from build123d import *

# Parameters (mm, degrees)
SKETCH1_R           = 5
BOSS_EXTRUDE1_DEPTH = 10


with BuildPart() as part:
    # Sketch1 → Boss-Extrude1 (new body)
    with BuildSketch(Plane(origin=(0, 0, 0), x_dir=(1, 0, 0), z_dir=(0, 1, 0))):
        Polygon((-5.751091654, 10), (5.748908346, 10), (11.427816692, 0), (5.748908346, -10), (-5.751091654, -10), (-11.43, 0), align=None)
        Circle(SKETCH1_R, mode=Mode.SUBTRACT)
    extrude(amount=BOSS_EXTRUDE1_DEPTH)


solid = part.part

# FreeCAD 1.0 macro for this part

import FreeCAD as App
import Part
import Sketcher

V = App.Vector

doc = App.newDocument("Part")
params = doc.addObject("Spreadsheet::Sheet", "Params")
for row, (alias, value) in enumerate([
    ("sketch1_diameter", "10 mm"),
    ("sketch1_width", "11.5 mm"),
    ("sketch1_length", "11.5 mm"),
    ("pad1_length", "10 mm"),
], start=1):
    params.set(f"A{row}", alias)
    params.set(f"B{row}", "=" + value)
    params.setAlias(f"B{row}", alias)

body = doc.addObject("PartDesign::Body", "Body")

sketch1 = doc.addObject("Sketcher::SketchObject", "Sketch")
body.addObject(sketch1)
sketch1.AttachmentSupport = (doc.XZ_Plane, [""])
sketch1.MapMode = "FlatFace"
sketch1.addGeometry([
    Part.LineSegment(V(6, -10, 0), V(-6, -10, 0)),
    Part.LineSegment(V(-6, -10, 0), V(-11, 0, 0)),
    Part.LineSegment(V(-11, 0, 0), V(-6, 10, 0)),
    Part.LineSegment(V(-6, 10, 0), V(6, 10, 0)),
    Part.LineSegment(V(6, 10, 0), V(11, 0, 0)),
    Part.LineSegment(V(11, 0, 0), V(6, -10, 0)),
    Part.Circle(V(0, 0, 0), V(0, 0, 1), 5),
], False)
sketch1.addConstraint([
    Sketcher.Constraint("Coincident", 0, 2, 1, 1),
    Sketcher.Constraint("Coincident", 1, 2, 2, 1),
    Sketcher.Constraint("Coincident", 2, 2, 3, 1),
    Sketcher.Constraint("Coincident", 3, 2, 4, 1),
    Sketcher.Constraint("Coincident", 4, 2, 5, 1),
    Sketcher.Constraint("Coincident", 5, 2, 0, 1),
    Sketcher.Constraint("Horizontal", 0),
    Sketcher.Constraint("Horizontal", 3),
    Sketcher.Constraint("Coincident", 6, 3, -1, 1),
    Sketcher.Constraint("Symmetric", 0, 2, 2, 2, -1),
    Sketcher.Constraint("PointOnObject", 1, 2, -1),
    Sketcher.Constraint("PointOnObject", 4, 2, -1),
    Sketcher.Constraint("Parallel", 1, 4),
    Sketcher.Constraint("Parallel", 2, 5),
    Sketcher.Constraint("Diameter", 6, 10.0),
    Sketcher.Constraint("DistanceX", 0, 2, 0, 1, 11.5),
    Sketcher.Constraint("DistanceY", 0, 2, -1, 1, 10.0),
    Sketcher.Constraint("Distance", 1, 11.5),
    Sketcher.Constraint("DistanceX", 1, 2, -1, 1, 11.43),
])
sketch1.setExpression("Constraints[14]", "Params.sketch1_diameter")
sketch1.setExpression("Constraints[15]", "Params.sketch1_width")
sketch1.setExpression("Constraints[17]", "Params.sketch1_length")
pad1 = doc.addObject("PartDesign::Pad", "Pad")
body.addObject(pad1)
pad1.Profile = sketch1
pad1.setExpression("Length", "Params.pad1_length")
pad1.Reversed = True

doc.recompute()
